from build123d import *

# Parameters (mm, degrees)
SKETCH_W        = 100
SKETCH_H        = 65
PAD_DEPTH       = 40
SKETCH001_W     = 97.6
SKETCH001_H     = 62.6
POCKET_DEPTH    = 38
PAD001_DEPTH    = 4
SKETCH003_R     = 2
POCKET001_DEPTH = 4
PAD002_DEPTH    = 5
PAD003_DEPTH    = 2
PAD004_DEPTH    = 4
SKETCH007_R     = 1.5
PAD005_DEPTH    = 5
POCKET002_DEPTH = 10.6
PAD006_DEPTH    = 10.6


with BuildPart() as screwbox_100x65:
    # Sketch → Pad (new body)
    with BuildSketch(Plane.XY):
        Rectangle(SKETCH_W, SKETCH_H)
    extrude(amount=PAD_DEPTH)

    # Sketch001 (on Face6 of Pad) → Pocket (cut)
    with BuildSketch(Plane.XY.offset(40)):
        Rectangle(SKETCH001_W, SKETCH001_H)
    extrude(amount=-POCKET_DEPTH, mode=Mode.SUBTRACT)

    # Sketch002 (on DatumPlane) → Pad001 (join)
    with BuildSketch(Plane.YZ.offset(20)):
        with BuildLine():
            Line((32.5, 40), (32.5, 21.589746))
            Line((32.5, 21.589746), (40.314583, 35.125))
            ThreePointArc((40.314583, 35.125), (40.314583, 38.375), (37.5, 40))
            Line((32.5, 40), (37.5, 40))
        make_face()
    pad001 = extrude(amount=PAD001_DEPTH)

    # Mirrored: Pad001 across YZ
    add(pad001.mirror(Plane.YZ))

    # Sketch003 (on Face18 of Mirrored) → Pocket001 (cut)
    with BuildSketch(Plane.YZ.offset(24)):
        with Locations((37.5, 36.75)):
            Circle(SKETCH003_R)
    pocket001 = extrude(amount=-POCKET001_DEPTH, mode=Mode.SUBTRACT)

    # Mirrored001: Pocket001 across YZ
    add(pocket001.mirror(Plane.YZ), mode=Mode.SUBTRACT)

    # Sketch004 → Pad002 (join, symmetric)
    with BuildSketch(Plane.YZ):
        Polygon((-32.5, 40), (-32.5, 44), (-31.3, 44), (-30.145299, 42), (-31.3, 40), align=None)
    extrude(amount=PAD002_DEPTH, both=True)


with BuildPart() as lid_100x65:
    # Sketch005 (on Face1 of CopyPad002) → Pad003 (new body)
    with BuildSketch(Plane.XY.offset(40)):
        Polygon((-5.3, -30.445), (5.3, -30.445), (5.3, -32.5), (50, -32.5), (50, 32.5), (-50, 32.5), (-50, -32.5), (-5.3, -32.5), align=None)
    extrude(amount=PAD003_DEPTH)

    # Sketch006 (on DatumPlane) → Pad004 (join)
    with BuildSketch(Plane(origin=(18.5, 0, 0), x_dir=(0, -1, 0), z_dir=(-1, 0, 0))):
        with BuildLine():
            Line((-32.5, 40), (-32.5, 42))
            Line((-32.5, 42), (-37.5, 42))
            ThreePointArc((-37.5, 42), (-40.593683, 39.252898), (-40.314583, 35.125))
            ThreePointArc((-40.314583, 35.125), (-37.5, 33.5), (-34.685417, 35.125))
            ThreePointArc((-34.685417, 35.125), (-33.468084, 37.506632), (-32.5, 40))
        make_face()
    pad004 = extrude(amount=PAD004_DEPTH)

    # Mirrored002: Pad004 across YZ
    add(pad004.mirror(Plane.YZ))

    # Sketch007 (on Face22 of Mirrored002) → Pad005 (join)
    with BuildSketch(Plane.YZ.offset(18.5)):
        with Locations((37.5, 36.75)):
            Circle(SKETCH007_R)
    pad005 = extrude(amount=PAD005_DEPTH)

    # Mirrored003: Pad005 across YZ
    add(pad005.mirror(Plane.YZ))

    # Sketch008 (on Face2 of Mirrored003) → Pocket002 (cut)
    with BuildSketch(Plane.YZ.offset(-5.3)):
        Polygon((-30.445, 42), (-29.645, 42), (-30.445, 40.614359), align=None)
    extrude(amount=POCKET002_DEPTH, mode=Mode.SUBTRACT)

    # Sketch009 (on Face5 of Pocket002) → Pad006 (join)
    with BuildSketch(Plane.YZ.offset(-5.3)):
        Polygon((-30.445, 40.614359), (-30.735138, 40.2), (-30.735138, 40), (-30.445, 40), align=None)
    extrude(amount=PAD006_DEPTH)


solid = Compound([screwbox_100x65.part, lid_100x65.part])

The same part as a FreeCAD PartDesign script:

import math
import FreeCAD as App
import Part
import Sketcher

V = App.Vector
Q = App.Units.Quantity

doc = App.newDocument("Part")
params = doc.addObject("Spreadsheet::Sheet", "Params")
for row, (alias, value) in enumerate([
    ("sketch1_width", "100 mm"),
    ("sketch1_height", "65 mm"),
    ("pad1_length", "40 mm"),
    ("sketch2_width", "97.6 mm"),
    ("sketch2_height", "62.6 mm"),
    ("pocket1_length", "38 mm"),
    ("sketch3_width", "5 mm"),
    ("sketch3_radius", "3.25 mm"),
    ("pad2_length", "4 mm"),
    ("sketch4_diameter", "4 mm"),
    ("pocket2_length", "4 mm"),
    ("sketch5_height", "4 mm"),
    ("sketch5_width", "1.2 mm"),
    ("pad3_length", "10 mm"),
    ("sketch6_width", "100 mm"),
    ("sketch6_height", "65 mm"),
    ("sketch6_width2", "10.6 mm"),
    ("pad4_length", "2 mm"),
    ("sketch7_width", "5 mm"),
    ("sketch7_height", "2 mm"),
    ("sketch7_radius", "3.250001 mm"),
    ("pad5_length", "4 mm"),
    ("sketch8_diameter", "3 mm"),
    ("pad6_length", "5 mm"),
    ("sketch9_width", "0.8 mm"),
    ("pocket3_length", "10.6 mm"),
    ("sketch10_height", "0.2 mm"),
    ("pad7_length", "10.6 mm"),
], start=1):
    params.set(f"A{row}", alias)
    params.set(f"B{row}", "=" + value)
    params.setAlias(f"B{row}", alias)

body = doc.addObject("PartDesign::Body", "Body")

# Sketch on XY plane
sketch1 = body.newObject("Sketcher::SketchObject", "Sketch")
sketch1.AttachmentSupport = (doc.getObject("XY_Plane"), [""])
sketch1.MapMode = "FlatFace"
sketch1.addGeometry([
    Part.LineSegment(V(-50, 32.5, 0), V(-50, -32.5, 0)),
    Part.LineSegment(V(-50, -32.5, 0), V(50, -32.5, 0)),
    Part.LineSegment(V(50, -32.5, 0), V(50, 32.5, 0)),
    Part.LineSegment(V(50, 32.5, 0), V(-50, 32.5, 0)),
], False)
sketch1.addConstraint([
    Sketcher.Constraint("Coincident", 0, 2, 1, 1),
    Sketcher.Constraint("Coincident", 1, 2, 2, 1),
    Sketcher.Constraint("Coincident", 2, 2, 3, 1),
    Sketcher.Constraint("Coincident", 3, 2, 0, 1),
    Sketcher.Constraint("Vertical", 0),
    Sketcher.Constraint("Horizontal", 1),
    Sketcher.Constraint("Vertical", 2),
    Sketcher.Constraint("Horizontal", 3),
    Sketcher.Constraint("Symmetric", 0, 2, 2, 2, -1, 1),
    Sketcher.Constraint("DistanceX", 1, 1, 1, 2, Q("100 mm")),
    Sketcher.Constraint("DistanceY", 0, 2, 0, 1, Q("65 mm")),
])
sketch1.setExpression("Constraints[9]", "Params.sketch1_width")
sketch1.setExpression("Constraints[10]", "Params.sketch1_height")
pad1 = body.newObject("PartDesign::Pad", "Pad")
pad1.Profile = sketch1
pad1.setExpression("Length", "Params.pad1_length")

# Sketch on XY plane
sketch2 = body.newObject("Sketcher::SketchObject", "Sketch001")
sketch2.AttachmentSupport = (doc.getObject("XY_Plane"), [""])
sketch2.MapMode = "FlatFace"
sketch2.AttachmentOffset = App.Placement(V(0, 0, 40), App.Rotation())
sketch2.addGeometry([
    Part.LineSegment(V(-48.8, 31.3, 0), V(-48.8, -31.3, 0)),
    Part.LineSegment(V(-48.8, -31.3, 0), V(48.8, -31.3, 0)),
    Part.LineSegment(V(48.8, -31.3, 0), V(48.8, 31.3, 0)),
    Part.LineSegment(V(48.8, 31.3, 0), V(-48.8, 31.3, 0)),
], False)
sketch2.addConstraint([
    Sketcher.Constraint("Coincident", 0, 2, 1, 1),
    Sketcher.Constraint("Coincident", 1, 2, 2, 1),
    Sketcher.Constraint("Coincident", 2, 2, 3, 1),
    Sketcher.Constraint("Coincident", 3, 2, 0, 1),
    Sketcher.Constraint("Vertical", 0),
    Sketcher.Constraint("Horizontal", 1),
    Sketcher.Constraint("Vertical", 2),
    Sketcher.Constraint("Horizontal", 3),
    Sketcher.Constraint("Symmetric", 0, 2, 2, 2, -1, 1),
    Sketcher.Constraint("DistanceX", 1, 1, 1, 2, Q("97.6 mm")),
    Sketcher.Constraint("DistanceY", 0, 2, 0, 1, Q("62.6 mm")),
])
sketch2.setExpression("Constraints[9]", "Params.sketch2_width")
sketch2.setExpression("Constraints[10]", "Params.sketch2_height")
pocket1 = body.newObject("PartDesign::Pocket", "Pocket")
pocket1.Profile = sketch2
pocket1.setExpression("Length", "Params.pocket1_length")

# Sketch on YZ plane
sketch3 = body.newObject("Sketcher::SketchObject", "Sketch002")
sketch3.AttachmentSupport = (doc.getObject("YZ_Plane"), [""])
sketch3.MapMode = "FlatFace"
sketch3.AttachmentOffset = App.Placement(V(0, 0, 20), App.Rotation())
sketch3.addGeometry([
    Part.LineSegment(V(32.5, 40, 0), V(32.5, 21.589746, 0)),
    Part.LineSegment(V(32.5, 21.589746, 0), V(40.314583, 35.125, 0)),
    Part.ArcOfCircle(Part.Circle(V(37.5, 36.75, 0), V(0, 0, 1), 3.25), math.radians(-30), math.radians(90.000008)),
    Part.LineSegment(V(37.5, 40, 0), V(32.5, 40, 0)),
], False)
sketch3.addConstraint([
    Sketcher.Constraint("Coincident", 0, 2, 1, 1),
    Sketcher.Constraint("Tangent", 1, 2, 2, 1),
    Sketcher.Constraint("Tangent", 2, 2, 3, 1),
    Sketcher.Constraint("Coincident", 3, 2, 0, 1),
    Sketcher.Constraint("Vertical", 0),
    Sketcher.Constraint("Horizontal", 3),
    Sketcher.Constraint("DistanceX", 3, 2, 3, 1, Q("5 mm")),
    Sketcher.Constraint("Angle", 1, Q("59.999999 deg")),
    Sketcher.Constraint("Radius", 2, Q("3.25 mm")),
    Sketcher.Constraint("DistanceY", -1, 1, 2, 2, Q("40 mm")),
    Sketcher.Constraint("DistanceX", -1, 1, 2, 3, Q("37.5 mm")),
])
sketch3.setExpression("Constraints[6]", "Params.sketch3_width")
sketch3.setExpression("Constraints[8]", "Params.sketch3_radius")
pad2 = body.newObject("PartDesign::Pad", "Pad001")
pad2.Profile = sketch3
pad2.setExpression("Length", "Params.pad2_length")
doc.recompute()

mirrored = body.newObject("PartDesign::Mirrored", "Mirrored")
mirrored.Originals = [pad2]
mirrored.MirrorPlane = (doc.getObject("YZ_Plane"), [""])
body.Tip = mirrored

# Sketch on YZ plane
sketch4 = body.newObject("Sketcher::SketchObject", "Sketch003")
sketch4.AttachmentSupport = (doc.getObject("YZ_Plane"), [""])
sketch4.MapMode = "FlatFace"
sketch4.AttachmentOffset = App.Placement(V(0, 0, 24), App.Rotation())
sketch4.addGeometry(Part.Circle(V(37.5, 36.75, 0), V(0, 0, 1), 2), False)
sketch4.addConstraint([
    Sketcher.Constraint("Diameter", 0, Q("4 mm")),
    Sketcher.Constraint("DistanceX", -1, 1, 0, 3, Q("37.5 mm")),
    Sketcher.Constraint("DistanceY", -1, 1, 0, 3, Q("36.75 mm")),
])
sketch4.setExpression("Constraints[0]", "Params.sketch4_diameter")
pocket2 = body.newObject("PartDesign::Pocket", "Pocket001")
pocket2.Profile = sketch4
pocket2.setExpression("Length", "Params.pocket2_length")
doc.recompute()

mirrored2 = body.newObject("PartDesign::Mirrored", "Mirrored001")
mirrored2.Originals = [pocket2]
mirrored2.MirrorPlane = (doc.getObject("YZ_Plane"), [""])
body.Tip = mirrored2

# Sketch on YZ plane
sketch5 = body.newObject("Sketcher::SketchObject", "Sketch004")
sketch5.AttachmentSupport = (doc.getObject("YZ_Plane"), [""])
sketch5.MapMode = "FlatFace"
sketch5.addGeometry([
    Part.LineSegment(V(-32.5, 44, 0), V(-32.5, 40, 0)),  # 0
    Part.LineSegment(V(-32.5, 40, 0), V(-31.3, 40, 0)),  # 1
    Part.LineSegment(V(-31.3, 40, 0), V(-30.145299, 42, 0)),  # 2
    Part.LineSegment(V(-30.145299, 42, 0), V(-31.3, 44, 0)),  # 3
    Part.LineSegment(V(-31.3, 44, 0), V(-32.5, 44, 0)),  # 4
], False)
sketch5.addConstraint([
    Sketcher.Constraint("Coincident", 0, 2, 1, 1),
    Sketcher.Constraint("Coincident", 1, 2, 2, 1),
    Sketcher.Constraint("Coincident", 2, 2, 3, 1),
    Sketcher.Constraint("Coincident", 3, 2, 4, 1),
    Sketcher.Constraint("Coincident", 4, 2, 0, 1),
    Sketcher.Constraint("Vertical", 0),
    Sketcher.Constraint("Horizontal", 1),
    Sketcher.Constraint("Horizontal", 4),
    Sketcher.Constraint("Vertical", 1, 2, 3, 2),
    Sketcher.Constraint("Equal", 2, 3),
    Sketcher.Constraint("DistanceY", 0, 2, 0, 1, Q("4 mm")),
    Sketcher.Constraint("Angle", 2, Q("59.99999 deg")),
    Sketcher.Constraint("DistanceX", 1, 1, 1, 2, Q("1.2 mm")),
    Sketcher.Constraint("DistanceY", -1, 1, 0, 2, Q("40 mm")),
    Sketcher.Constraint("DistanceX", 0, 2, -1, 1, Q("32.5 mm")),
])
sketch5.setExpression("Constraints[10]", "Params.sketch5_height")
sketch5.setExpression("Constraints[12]", "Params.sketch5_width")
pad3 = body.newObject("PartDesign::Pad", "Pad002")
pad3.Profile = sketch5
pad3.setExpression("Length", "Params.pad3_length")
pad3.Midplane = True
body2 = doc.addObject("PartDesign::Body", "Body001")

# Sketch on XY plane
sketch6 = body2.newObject("Sketcher::SketchObject", "Sketch005")
sketch6.AttachmentSupport = (doc.getObject("XY_Plane001"), [""])
sketch6.MapMode = "FlatFace"
sketch6.AttachmentOffset = App.Placement(V(0, 0, 40), App.Rotation())
sketch6.addGeometry([
    Part.LineSegment(V(-5.3, -30.445, 0), V(5.3, -30.445, 0)),  # 0
    Part.LineSegment(V(5.3, -30.445, 0), V(5.3, -32.5, 0)),  # 1
    Part.LineSegment(V(5.3, -32.5, 0), V(50, -32.5, 0)),  # 2
    Part.LineSegment(V(50, -32.5, 0), V(50, 32.5, 0)),  # 3
    Part.LineSegment(V(50, 32.5, 0), V(-50, 32.5, 0)),  # 4
    Part.LineSegment(V(-50, 32.5, 0), V(-50, -32.5, 0)),  # 5
    Part.LineSegment(V(-50, -32.5, 0), V(-5.3, -32.5, 0)),  # 6
    Part.LineSegment(V(-5.3, -32.5, 0), V(-5.3, -30.445, 0)),  # 7
], False)
sketch6.addConstraint([
    Sketcher.Constraint("Coincident", 0, 2, 1, 1),
    Sketcher.Constraint("Coincident", 1, 2, 2, 1),
    Sketcher.Constraint("Coincident", 2, 2, 3, 1),
    Sketcher.Constraint("Coincident", 3, 2, 4, 1),
    Sketcher.Constraint("Coincident", 4, 2, 5, 1),
    Sketcher.Constraint("Coincident", 5, 2, 6, 1),
    Sketcher.Constraint("Coincident", 6, 2, 7, 1),
    Sketcher.Constraint("Coincident", 7, 2, 0, 1),
    Sketcher.Constraint("Horizontal", 0),
    Sketcher.Constraint("Vertical", 1),
    Sketcher.Constraint("Horizontal", 2),
    Sketcher.Constraint("Vertical", 3),
    Sketcher.Constraint("Horizontal", 4),
    Sketcher.Constraint("Vertical", 5),
    Sketcher.Constraint("Horizontal", 6),
    Sketcher.Constraint("Vertical", 7),
    Sketcher.Constraint("Symmetric", 2, 2, 4, 2, -1, 1),
    Sketcher.Constraint("Symmetric", 1, 2, 6, 2, -2),
    Sketcher.Constraint("DistanceX", 4, 2, 4, 1, Q("100 mm")),
    Sketcher.Constraint("DistanceY", 3, 1, 3, 2, Q("65 mm")),
    Sketcher.Constraint("DistanceX", 0, 1, 0, 2, Q("10.6 mm")),
    Sketcher.Constraint("DistanceY", 1, 2, 1, 1, Q("2.055 mm")),
])
sketch6.setExpression("Constraints[18]", "Params.sketch6_width")
sketch6.setExpression("Constraints[19]", "Params.sketch6_height")
sketch6.setExpression("Constraints[20]", "Params.sketch6_width2")
pad4 = body2.newObject("PartDesign::Pad", "Pad003")
pad4.Profile = sketch6
pad4.setExpression("Length", "Params.pad4_length")

# Sketch on YZ plane
sketch7 = body2.newObject("Sketcher::SketchObject", "Sketch006")
sketch7.AttachmentSupport = (doc.getObject("YZ_Plane001"), [""])
sketch7.MapMode = "FlatFace"
sketch7.AttachmentOffset = App.Placement(V(0, 0, 18.5), App.Rotation())
sketch7.addGeometry([
    Part.LineSegment(V(32.5, 40, 0), V(32.5, 42, 0)),  # 0
    Part.LineSegment(V(32.5, 42, 0), V(37.5, 42, 0)),  # 1
    Part.ArcOfCircle(Part.Circle(V(36.247028, 37.473404, 0), V(0, 0, 1), 4.696808), math.radians(-30.000005), math.radians(74.527791)),  # 2
    Part.ArcOfCircle(Part.Circle(V(37.5, 36.750001, 0), V(0, 0, 1), 3.250001), math.radians(-149.999992), math.radians(-30.000008)),  # 3
    Part.ArcOfCircle(Part.Circle(V(57.367628, 48.220575, 0), V(0, 0, 1), 26.191159), math.radians(-161.707492), math.radians(-150.000012)),  # 4
], False)
sketch7.addConstraint([
    Sketcher.Constraint("Coincident", 0, 2, 1, 1),
    Sketcher.Constraint("Coincident", 1, 2, 2, 2),
    Sketcher.Constraint("Coincident", 2, 1, 3, 2),
    Sketcher.Constraint("Coincident", 3, 1, 4, 2),
    Sketcher.Constraint("Coincident", 4, 1, 0, 1),
    Sketcher.Constraint("Vertical", 0),
    Sketcher.Constraint("Horizontal", 1),
    Sketcher.Constraint("DistanceX", 1, 1, 1, 2, Q("5 mm")),
    Sketcher.Constraint("DistanceY", 0, 1, 0, 2, Q("2 mm")),
    Sketcher.Constraint("Radius", 3, Q("3.250001 mm")),
    Sketcher.Constraint("DistanceY", -1, 1, 0, 2, Q("42 mm")),
    Sketcher.Constraint("DistanceX", 0, 2, 3, 3, Q("5 mm")),
    Sketcher.Constraint("DistanceX", -1, 1, 3, 3, Q("37.5 mm")),
    Sketcher.Constraint("DistanceY", -1, 1, 3, 3, Q("36.750001 mm")),
    Sketcher.Constraint("Radius", 2, Q("4.696808 mm")),
    Sketcher.Constraint("Radius", 4, Q("26.191159 mm")),
    Sketcher.Constraint("DistanceY", -1, 1, 2, 1, Q("35.125 mm")),
    Sketcher.Constraint("DistanceY", -1, 1, 3, 1, Q("35.125 mm")),
])
sketch7.setExpression("Constraints[7]", "Params.sketch7_width")
sketch7.setExpression("Constraints[8]", "Params.sketch7_height")
sketch7.setExpression("Constraints[9]", "Params.sketch7_radius")
pad5 = body2.newObject("PartDesign::Pad", "Pad004")
pad5.Profile = sketch7
pad5.setExpression("Length", "Params.pad5_length")
pad5.Reversed = True
doc.recompute()

mirrored3 = body2.newObject("PartDesign::Mirrored", "Mirrored002")
mirrored3.Originals = [pad5]
mirrored3.MirrorPlane = (doc.getObject("YZ_Plane001"), [""])
body2.Tip = mirrored3

# Sketch on YZ plane
sketch8 = body2.newObject("Sketcher::SketchObject", "Sketch007")
sketch8.AttachmentSupport = (doc.getObject("YZ_Plane001"), [""])
sketch8.MapMode = "FlatFace"
sketch8.AttachmentOffset = App.Placement(V(0, 0, 18.5), App.Rotation())
sketch8.addGeometry(Part.Circle(V(37.5, 36.75, 0), V(0, 0, 1), 1.5), False)
sketch8.addConstraint([
    Sketcher.Constraint("Diameter", 0, Q("3 mm")),
    Sketcher.Constraint("DistanceX", -1, 1, 0, 3, Q("37.5 mm")),
    Sketcher.Constraint("DistanceY", -1, 1, 0, 3, Q("36.75 mm")),
])
sketch8.setExpression("Constraints[0]", "Params.sketch8_diameter")
pad6 = body2.newObject("PartDesign::Pad", "Pad005")
pad6.Profile = sketch8
pad6.setExpression("Length", "Params.pad6_length")
doc.recompute()

mirrored4 = body2.newObject("PartDesign::Mirrored", "Mirrored003")
mirrored4.Originals = [pad6]
mirrored4.MirrorPlane = (doc.getObject("YZ_Plane001"), [""])
body2.Tip = mirrored4

# Sketch on YZ plane
sketch9 = body2.newObject("Sketcher::SketchObject", "Sketch008")
sketch9.AttachmentSupport = (doc.getObject("YZ_Plane001"), [""])
sketch9.MapMode = "FlatFace"
sketch9.AttachmentOffset = App.Placement(V(0, 0, -5.3), App.Rotation())
sketch9.addGeometry([
    Part.LineSegment(V(-29.645, 42, 0), V(-30.445, 42, 0)),
    Part.LineSegment(V(-30.445, 42, 0), V(-30.445, 40.614359, 0)),
    Part.LineSegment(V(-30.445, 40.614359, 0), V(-29.645, 42, 0)),
], False)
sketch9.addConstraint([
    Sketcher.Constraint("Coincident", 0, 2, 1, 1),
    Sketcher.Constraint("Coincident", 1, 2, 2, 1),
    Sketcher.Constraint("Coincident", 2, 2, 0, 1),
    Sketcher.Constraint("Horizontal", 0),
    Sketcher.Constraint("Vertical", 1),
    Sketcher.Constraint("Angle", 2, Q("60.000006 deg")),
    Sketcher.Constraint("DistanceX", 0, 2, 0, 1, Q("0.8 mm")),
    Sketcher.Constraint("DistanceY", -1, 1, 0, 2, Q("42 mm")),
    Sketcher.Constraint("DistanceX", 0, 2, -1, 1, Q("30.445 mm")),
])
sketch9.setExpression("Constraints[6]", "Params.sketch9_width")
pocket3 = body2.newObject("PartDesign::Pocket", "Pocket002")
pocket3.Profile = sketch9
pocket3.setExpression("Length", "Params.pocket3_length")
pocket3.Reversed = True

# Sketch on YZ plane
sketch10 = body2.newObject("Sketcher::SketchObject", "Sketch009")
sketch10.AttachmentSupport = (doc.getObject("YZ_Plane001"), [""])
sketch10.MapMode = "FlatFace"
sketch10.AttachmentOffset = App.Placement(V(0, 0, -5.3), App.Rotation())
sketch10.addGeometry([
    Part.LineSegment(V(-30.445, 40.614359, 0), V(-30.735138, 40.2, 0)),
    Part.LineSegment(V(-30.735138, 40.2, 0), V(-30.735138, 40, 0)),
    Part.LineSegment(V(-30.735138, 40, 0), V(-30.445, 40, 0)),
    Part.LineSegment(V(-30.445, 40, 0), V(-30.445, 40.614359, 0)),
], False)
sketch10.addConstraint([
    Sketcher.Constraint("Coincident", 0, 2, 1, 1),
    Sketcher.Constraint("Coincident", 1, 2, 2, 1),
    Sketcher.Constraint("Coincident", 2, 2, 3, 1),
    Sketcher.Constraint("Coincident", 3, 2, 0, 1),
    Sketcher.Constraint("Vertical", 1),
    Sketcher.Constraint("Horizontal", 2),
    Sketcher.Constraint("Vertical", 3),
    Sketcher.Constraint("DistanceY", 1, 2, 1, 1, Q("0.2 mm")),
    Sketcher.Constraint("DistanceY", -1, 1, 1, 2, Q("40 mm")),
    Sketcher.Constraint("DistanceX", 2, 2, -1, 1, Q("30.445 mm")),
    Sketcher.Constraint("DistanceY", 3, 1, 3, 2, Q("0.614359 mm")),
    Sketcher.Constraint("Distance", 0, Q("0.505839 mm")),
])
sketch10.setExpression("Constraints[7]", "Params.sketch10_height")
pad7 = body2.newObject("PartDesign::Pad", "Pad006")
pad7.Profile = sketch10
pad7.setExpression("Length", "Params.pad7_length")

doc.recompute()
